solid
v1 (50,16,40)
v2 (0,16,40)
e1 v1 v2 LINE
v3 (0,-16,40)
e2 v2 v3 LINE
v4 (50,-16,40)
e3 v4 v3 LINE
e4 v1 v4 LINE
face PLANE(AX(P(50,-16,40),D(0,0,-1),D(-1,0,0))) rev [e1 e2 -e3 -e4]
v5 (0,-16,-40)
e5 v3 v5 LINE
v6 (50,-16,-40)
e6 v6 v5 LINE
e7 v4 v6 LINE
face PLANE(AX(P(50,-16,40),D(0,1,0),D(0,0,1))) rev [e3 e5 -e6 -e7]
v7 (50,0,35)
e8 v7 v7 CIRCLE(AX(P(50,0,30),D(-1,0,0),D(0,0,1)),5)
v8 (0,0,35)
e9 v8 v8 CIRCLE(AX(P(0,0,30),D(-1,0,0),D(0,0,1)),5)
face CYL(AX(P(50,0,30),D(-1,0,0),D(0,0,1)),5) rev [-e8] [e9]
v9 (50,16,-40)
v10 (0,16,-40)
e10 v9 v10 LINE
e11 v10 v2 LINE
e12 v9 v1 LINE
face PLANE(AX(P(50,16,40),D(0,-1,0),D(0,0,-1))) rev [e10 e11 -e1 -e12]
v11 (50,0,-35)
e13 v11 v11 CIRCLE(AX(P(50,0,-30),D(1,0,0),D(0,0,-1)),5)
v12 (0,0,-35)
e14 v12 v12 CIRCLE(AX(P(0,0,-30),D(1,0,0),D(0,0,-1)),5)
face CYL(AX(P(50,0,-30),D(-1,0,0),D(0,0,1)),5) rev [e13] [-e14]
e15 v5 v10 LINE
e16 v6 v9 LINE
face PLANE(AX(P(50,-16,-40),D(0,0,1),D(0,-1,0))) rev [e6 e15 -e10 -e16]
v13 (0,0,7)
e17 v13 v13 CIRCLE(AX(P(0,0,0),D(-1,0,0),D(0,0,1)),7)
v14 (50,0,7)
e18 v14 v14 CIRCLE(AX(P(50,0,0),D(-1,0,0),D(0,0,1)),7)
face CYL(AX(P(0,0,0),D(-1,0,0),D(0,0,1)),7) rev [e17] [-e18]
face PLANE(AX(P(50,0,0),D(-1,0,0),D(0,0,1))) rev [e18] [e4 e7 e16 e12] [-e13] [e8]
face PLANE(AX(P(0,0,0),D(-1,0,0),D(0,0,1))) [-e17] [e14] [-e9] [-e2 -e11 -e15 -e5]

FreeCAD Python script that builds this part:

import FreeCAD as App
import Part
import Sketcher
Q = App.Units.Quantity

doc = App.newDocument("Part")
body = doc.addObject("PartDesign::Body", "Body")

# Sketch on YZ plane
sketch1 = body.newObject("Sketcher::SketchObject", "Sketch")
sketch1.AttachmentSupport = (doc.getObject("YZ_Plane"), [""])
sketch1.MapMode = "FlatFace"
sketch1.addGeometry([
    Part.LineSegment(App.Vector(16, 40, 0), App.Vector(-16, 40, 0)),
    Part.LineSegment(App.Vector(-16, 40, 0), App.Vector(-16, -40, 0)),
    Part.LineSegment(App.Vector(-16, -40, 0), App.Vector(16, -40, 0)),
    Part.LineSegment(App.Vector(16, -40, 0), App.Vector(16, 40, 0)),
], False)
sketch1.addConstraint([
    Sketcher.Constraint("Coincident", 0, 2, 1, 1),
    Sketcher.Constraint("Coincident", 1, 2, 2, 1),
    Sketcher.Constraint("Coincident", 2, 2, 3, 1),
    Sketcher.Constraint("Coincident", 3, 2, 0, 1),
    Sketcher.Constraint("Horizontal", 0),
    Sketcher.Constraint("Vertical", 1),
    Sketcher.Constraint("Horizontal", 2),
    Sketcher.Constraint("Vertical", 3),
    Sketcher.Constraint("Symmetric", 0, 2, 2, 2, -1, 1),
    Sketcher.Constraint("DistanceX", 0, 2, 0, 1, Q("32 mm")),
    Sketcher.Constraint("DistanceY", 1, 2, 1, 1, Q("80 mm")),
])
pad1 = body.newObject("PartDesign::Pad", "Pad")
pad1.Profile = sketch1
pad1.Length = 50

# Sketch on YZ plane
sketch2 = body.newObject("Sketcher::SketchObject", "Sketch001")
sketch2.AttachmentSupport = (doc.getObject("YZ_Plane"), [""])
sketch2.MapMode = "FlatFace"
sketch2.addGeometry(Part.Circle(App.Vector(0, 0, 0), App.Vector(0, 0, 1), 7), False)
sketch2.addConstraint([
    Sketcher.Constraint("Coincident", 0, 3, -1, 1),
    Sketcher.Constraint("Diameter", 0, Q("14 mm")),
])
doc.recompute()
hole = body.newObject("PartDesign::Hole", "Hole")
hole.Profile = sketch2
hole.ThreadType = "None"
hole.Diameter = 14
hole.DepthType = "ThroughAll"
hole.Reversed = True

# Sketch on YZ plane
sketch3 = body.newObject("Sketcher::SketchObject", "Sketch002")
sketch3.AttachmentSupport = (doc.getObject("YZ_Plane"), [""])
sketch3.MapMode = "FlatFace"
sketch3.addGeometry(Part.Circle(App.Vector(0, 30, 0), App.Vector(0, 0, 1), 5), False)
sketch3.addConstraint([
    Sketcher.Constraint("PointOnObject", 0, 3, -2),
    Sketcher.Constraint("Diameter", 0, Q("10 mm")),
    Sketcher.Constraint("DistanceY", -1, 1, 0, 3, Q("30 mm")),
])
pocket1 = body.newObject("PartDesign::Pocket", "Pocket")
pocket1.Profile = sketch3
pocket1.Type = "ThroughAll"
pocket1.Reversed = True
doc.recompute()

mirrored = body.newObject("PartDesign::Mirrored", "Mirrored")
mirrored.Originals = [pocket1]
mirrored.MirrorPlane = (doc.getObject("XY_Plane"), [""])
body.Tip = mirrored

doc.recompute()
